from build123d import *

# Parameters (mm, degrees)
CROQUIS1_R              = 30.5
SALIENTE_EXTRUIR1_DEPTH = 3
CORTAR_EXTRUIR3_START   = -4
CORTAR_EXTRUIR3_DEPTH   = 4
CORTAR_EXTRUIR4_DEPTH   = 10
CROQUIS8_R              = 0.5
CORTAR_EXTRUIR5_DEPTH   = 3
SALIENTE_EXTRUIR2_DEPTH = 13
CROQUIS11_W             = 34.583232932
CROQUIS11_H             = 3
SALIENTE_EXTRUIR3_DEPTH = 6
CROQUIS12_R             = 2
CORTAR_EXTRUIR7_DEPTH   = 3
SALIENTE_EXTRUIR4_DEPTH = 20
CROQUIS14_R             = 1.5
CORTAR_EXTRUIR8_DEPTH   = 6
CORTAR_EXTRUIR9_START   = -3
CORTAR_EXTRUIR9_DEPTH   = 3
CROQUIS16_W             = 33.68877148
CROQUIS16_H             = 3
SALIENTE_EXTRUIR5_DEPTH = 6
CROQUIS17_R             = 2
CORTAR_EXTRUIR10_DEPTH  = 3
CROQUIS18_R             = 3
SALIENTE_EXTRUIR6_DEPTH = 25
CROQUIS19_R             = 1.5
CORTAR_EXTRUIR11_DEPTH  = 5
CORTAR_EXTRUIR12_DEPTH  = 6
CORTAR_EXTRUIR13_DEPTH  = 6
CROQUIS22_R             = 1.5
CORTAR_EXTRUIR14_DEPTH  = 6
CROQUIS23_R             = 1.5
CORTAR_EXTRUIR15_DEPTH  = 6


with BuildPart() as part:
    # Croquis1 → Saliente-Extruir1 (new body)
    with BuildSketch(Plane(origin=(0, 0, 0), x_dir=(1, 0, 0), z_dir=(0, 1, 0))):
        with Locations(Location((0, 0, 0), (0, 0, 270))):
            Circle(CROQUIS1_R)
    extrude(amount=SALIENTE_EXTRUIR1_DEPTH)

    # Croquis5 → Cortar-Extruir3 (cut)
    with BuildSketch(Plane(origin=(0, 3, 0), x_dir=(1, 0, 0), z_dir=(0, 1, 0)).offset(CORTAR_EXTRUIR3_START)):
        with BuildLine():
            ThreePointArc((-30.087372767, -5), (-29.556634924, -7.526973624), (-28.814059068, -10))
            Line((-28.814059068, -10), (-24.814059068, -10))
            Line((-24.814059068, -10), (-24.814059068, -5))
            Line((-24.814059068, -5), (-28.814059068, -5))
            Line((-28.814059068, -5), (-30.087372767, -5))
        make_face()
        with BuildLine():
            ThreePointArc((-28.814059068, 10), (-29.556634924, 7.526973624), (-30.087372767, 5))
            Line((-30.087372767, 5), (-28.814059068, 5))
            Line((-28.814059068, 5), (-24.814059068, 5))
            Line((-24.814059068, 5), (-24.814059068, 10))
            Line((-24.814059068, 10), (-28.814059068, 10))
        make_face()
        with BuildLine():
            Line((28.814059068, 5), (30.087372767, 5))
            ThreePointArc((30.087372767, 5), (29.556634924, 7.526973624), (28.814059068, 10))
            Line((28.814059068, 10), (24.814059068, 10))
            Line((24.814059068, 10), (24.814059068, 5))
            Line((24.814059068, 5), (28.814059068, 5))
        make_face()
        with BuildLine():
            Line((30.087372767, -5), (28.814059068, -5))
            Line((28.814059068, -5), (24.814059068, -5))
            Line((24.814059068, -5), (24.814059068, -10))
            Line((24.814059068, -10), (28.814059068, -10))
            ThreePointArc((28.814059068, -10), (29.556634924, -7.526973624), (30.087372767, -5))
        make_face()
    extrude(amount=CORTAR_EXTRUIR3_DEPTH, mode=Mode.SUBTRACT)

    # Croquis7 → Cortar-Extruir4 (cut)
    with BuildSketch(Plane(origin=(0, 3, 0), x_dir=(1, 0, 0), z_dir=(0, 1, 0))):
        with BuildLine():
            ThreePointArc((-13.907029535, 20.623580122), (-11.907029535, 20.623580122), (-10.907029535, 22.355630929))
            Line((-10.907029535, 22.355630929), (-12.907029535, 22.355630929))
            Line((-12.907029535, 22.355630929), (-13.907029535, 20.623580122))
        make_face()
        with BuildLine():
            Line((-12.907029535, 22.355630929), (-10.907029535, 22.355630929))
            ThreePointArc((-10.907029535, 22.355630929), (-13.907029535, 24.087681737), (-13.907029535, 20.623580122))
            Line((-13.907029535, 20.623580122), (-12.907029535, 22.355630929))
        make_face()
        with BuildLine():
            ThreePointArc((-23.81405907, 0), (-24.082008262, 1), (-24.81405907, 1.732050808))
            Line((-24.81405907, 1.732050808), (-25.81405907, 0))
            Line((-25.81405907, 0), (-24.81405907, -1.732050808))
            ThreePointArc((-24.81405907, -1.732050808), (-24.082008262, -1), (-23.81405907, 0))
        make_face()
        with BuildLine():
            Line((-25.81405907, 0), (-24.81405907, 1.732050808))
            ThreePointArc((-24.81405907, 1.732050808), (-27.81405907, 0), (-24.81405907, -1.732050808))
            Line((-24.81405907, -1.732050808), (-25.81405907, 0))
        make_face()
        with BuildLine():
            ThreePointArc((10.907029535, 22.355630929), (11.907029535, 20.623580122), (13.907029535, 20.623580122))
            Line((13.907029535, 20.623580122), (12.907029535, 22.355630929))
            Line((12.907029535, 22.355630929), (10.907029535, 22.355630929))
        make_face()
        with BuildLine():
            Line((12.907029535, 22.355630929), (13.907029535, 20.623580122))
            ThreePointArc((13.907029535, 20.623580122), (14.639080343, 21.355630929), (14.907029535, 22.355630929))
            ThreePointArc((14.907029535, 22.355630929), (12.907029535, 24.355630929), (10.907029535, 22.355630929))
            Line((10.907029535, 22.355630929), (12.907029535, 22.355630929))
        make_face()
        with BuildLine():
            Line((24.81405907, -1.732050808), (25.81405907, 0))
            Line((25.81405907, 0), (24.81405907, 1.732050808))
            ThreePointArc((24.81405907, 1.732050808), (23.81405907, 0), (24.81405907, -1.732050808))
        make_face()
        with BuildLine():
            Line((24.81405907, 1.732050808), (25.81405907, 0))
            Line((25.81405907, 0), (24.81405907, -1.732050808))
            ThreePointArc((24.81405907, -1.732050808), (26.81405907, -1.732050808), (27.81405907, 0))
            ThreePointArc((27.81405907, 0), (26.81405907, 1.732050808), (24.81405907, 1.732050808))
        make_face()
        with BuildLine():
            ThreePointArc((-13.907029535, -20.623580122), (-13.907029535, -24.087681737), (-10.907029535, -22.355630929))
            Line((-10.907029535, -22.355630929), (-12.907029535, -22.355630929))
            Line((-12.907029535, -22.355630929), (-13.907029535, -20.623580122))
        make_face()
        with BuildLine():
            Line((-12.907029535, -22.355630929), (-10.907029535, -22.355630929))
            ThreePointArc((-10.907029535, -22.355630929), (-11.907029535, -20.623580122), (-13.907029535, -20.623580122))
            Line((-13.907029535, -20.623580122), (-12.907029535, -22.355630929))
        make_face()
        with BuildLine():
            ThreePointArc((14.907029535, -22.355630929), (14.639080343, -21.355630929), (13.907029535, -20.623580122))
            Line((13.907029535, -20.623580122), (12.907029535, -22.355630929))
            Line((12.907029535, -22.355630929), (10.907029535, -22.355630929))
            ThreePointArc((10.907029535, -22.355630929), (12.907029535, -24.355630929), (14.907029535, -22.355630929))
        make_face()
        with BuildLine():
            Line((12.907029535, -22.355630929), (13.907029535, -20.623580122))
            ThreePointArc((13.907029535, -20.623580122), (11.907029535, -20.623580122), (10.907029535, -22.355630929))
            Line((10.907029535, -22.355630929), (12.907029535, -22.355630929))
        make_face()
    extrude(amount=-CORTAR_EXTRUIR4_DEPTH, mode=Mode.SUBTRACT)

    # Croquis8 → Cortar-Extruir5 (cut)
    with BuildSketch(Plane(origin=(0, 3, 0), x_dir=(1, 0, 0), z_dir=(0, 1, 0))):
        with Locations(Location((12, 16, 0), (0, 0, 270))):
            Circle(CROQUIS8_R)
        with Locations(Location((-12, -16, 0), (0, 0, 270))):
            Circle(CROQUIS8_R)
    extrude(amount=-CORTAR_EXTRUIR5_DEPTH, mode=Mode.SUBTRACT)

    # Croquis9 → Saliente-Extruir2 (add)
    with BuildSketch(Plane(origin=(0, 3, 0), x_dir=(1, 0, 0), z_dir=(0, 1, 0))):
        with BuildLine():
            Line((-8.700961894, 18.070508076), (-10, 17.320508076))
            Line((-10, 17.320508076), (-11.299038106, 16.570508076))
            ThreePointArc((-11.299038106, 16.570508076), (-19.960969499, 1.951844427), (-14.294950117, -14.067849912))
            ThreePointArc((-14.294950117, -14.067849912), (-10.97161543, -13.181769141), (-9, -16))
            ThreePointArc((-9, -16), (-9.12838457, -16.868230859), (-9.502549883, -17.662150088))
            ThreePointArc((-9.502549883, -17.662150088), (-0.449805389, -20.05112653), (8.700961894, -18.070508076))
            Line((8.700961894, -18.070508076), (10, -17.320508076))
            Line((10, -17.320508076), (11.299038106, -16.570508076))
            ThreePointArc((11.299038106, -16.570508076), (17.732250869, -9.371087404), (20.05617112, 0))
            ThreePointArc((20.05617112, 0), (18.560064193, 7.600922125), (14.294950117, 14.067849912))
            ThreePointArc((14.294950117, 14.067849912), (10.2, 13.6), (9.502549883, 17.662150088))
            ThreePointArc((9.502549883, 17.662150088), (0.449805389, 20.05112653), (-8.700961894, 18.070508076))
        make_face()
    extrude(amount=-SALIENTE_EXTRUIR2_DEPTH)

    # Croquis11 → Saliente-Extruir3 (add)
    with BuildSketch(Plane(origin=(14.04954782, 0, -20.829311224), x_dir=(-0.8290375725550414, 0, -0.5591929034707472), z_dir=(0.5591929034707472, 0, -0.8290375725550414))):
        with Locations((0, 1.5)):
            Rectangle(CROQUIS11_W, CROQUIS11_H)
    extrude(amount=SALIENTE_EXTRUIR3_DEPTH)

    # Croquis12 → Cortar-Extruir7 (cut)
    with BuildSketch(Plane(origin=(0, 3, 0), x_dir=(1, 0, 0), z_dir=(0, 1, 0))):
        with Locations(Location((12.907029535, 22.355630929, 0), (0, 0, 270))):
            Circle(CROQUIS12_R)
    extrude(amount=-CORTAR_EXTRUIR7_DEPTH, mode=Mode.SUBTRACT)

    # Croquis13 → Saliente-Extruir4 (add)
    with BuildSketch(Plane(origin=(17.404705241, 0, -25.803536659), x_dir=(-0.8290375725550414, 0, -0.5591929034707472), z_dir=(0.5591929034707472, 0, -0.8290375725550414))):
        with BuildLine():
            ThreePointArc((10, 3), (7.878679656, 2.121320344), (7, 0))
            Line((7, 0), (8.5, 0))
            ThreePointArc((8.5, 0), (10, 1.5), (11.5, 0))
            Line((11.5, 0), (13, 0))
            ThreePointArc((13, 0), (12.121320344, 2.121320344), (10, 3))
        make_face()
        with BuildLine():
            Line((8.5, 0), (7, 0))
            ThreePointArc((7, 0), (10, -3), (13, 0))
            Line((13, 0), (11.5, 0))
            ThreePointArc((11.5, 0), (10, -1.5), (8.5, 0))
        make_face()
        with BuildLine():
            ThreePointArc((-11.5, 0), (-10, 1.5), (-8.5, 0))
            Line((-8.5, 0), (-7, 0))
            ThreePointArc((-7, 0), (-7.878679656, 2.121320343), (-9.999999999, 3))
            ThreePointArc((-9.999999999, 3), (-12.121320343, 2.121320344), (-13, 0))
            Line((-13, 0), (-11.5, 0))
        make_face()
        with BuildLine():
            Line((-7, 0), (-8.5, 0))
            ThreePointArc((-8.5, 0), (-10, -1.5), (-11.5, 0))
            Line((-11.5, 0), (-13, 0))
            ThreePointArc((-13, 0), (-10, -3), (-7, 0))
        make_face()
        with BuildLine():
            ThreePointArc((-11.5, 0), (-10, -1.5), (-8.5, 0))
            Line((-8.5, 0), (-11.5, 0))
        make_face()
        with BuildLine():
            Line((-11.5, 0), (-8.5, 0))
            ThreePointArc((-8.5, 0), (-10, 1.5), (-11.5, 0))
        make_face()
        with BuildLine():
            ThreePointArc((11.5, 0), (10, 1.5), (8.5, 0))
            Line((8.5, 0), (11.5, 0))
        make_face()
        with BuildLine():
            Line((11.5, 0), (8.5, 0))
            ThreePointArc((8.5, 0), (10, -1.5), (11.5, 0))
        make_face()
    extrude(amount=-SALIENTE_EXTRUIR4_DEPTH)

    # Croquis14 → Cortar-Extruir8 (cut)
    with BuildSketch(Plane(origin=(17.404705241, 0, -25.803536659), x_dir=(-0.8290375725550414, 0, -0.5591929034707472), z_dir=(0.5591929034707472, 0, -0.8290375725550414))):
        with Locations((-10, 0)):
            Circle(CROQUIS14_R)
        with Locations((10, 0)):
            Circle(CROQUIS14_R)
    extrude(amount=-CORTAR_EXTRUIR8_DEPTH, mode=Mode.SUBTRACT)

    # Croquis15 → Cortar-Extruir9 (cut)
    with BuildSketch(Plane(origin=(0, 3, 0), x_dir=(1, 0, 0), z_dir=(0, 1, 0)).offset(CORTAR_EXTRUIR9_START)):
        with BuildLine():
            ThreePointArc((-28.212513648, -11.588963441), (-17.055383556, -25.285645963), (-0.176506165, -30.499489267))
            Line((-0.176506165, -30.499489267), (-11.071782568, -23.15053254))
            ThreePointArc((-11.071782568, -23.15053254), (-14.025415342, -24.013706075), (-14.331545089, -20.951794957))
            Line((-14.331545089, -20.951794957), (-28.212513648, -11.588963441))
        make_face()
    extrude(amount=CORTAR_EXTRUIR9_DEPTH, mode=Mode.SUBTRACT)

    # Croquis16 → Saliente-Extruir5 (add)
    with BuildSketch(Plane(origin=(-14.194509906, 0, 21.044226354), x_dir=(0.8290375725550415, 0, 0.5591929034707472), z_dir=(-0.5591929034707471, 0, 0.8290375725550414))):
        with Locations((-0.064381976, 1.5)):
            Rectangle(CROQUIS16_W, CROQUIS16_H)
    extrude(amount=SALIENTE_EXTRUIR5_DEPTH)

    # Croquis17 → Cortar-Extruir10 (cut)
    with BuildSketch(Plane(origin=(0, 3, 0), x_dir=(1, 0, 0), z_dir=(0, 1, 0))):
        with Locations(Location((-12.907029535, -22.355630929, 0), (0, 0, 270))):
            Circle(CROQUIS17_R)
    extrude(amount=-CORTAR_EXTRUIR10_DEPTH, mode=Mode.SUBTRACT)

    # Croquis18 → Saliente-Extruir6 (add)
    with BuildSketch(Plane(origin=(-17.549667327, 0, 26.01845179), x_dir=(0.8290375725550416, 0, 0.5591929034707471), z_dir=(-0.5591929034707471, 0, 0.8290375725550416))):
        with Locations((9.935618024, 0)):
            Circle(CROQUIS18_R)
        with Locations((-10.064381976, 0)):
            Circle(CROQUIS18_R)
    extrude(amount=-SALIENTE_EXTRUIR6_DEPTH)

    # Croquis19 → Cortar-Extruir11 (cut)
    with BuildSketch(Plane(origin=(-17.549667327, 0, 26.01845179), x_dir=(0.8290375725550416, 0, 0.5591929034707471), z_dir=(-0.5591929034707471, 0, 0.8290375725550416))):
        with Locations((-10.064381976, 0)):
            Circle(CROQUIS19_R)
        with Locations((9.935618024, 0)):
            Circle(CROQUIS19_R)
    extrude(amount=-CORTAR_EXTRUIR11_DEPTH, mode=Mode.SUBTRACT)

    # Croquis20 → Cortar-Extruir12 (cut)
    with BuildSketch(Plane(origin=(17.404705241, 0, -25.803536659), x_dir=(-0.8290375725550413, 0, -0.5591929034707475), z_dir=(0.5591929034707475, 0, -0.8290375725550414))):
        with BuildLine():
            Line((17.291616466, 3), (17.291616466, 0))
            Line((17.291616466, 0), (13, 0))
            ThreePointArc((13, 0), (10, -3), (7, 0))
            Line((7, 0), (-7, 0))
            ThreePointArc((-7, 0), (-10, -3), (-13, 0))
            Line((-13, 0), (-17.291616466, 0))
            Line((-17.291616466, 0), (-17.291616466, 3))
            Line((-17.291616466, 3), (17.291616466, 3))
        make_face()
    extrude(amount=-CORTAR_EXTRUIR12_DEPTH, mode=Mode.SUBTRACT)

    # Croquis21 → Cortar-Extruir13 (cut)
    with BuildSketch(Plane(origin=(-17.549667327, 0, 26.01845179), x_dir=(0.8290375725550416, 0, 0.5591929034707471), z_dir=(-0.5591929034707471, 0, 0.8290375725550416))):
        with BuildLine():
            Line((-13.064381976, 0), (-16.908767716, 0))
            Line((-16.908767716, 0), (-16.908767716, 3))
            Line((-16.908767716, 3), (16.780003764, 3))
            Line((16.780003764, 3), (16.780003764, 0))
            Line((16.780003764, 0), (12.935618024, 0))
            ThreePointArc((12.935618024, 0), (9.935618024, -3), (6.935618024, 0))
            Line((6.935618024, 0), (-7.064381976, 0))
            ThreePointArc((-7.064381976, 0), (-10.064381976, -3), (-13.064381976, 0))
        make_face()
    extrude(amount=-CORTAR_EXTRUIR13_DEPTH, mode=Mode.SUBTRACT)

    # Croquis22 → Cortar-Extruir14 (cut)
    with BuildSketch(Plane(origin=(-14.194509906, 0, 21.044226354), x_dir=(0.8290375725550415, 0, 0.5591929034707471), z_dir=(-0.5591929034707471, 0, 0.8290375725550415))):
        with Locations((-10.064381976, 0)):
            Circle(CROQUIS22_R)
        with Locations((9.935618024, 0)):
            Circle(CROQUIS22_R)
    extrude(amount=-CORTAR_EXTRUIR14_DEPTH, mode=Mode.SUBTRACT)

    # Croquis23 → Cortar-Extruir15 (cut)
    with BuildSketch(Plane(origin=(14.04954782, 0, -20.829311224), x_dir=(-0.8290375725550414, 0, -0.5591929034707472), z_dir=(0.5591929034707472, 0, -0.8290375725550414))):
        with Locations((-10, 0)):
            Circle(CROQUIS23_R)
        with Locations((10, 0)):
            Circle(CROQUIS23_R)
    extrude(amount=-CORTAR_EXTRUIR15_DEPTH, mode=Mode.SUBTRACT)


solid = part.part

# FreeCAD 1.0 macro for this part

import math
import FreeCAD as App
import Part
import Sketcher
from FreeCAD import Vector
Q = App.Units.Quantity


def add_polygon(sketch, points):
    """Adds a closed chain of lines whose ends are joined by coincident constraints."""
    first, n = sketch.GeometryCount, len(points)
    for a, b in zip(points, points[1:] + points[:1]):
        sketch.addGeometry(Part.LineSegment(App.Vector(*a, 0), App.Vector(*b, 0)), False)
    for i in range(n):
        sketch.addConstraint(Sketcher.Constraint("Coincident", first + i, 2, first + (i + 1) % n, 1))

doc = App.newDocument("Part")
body = doc.addObject("PartDesign::Body", "Body")

# Sketch on XZ plane
sketch1 = body.newObject("Sketcher::SketchObject", "Sketch")
sketch1.AttachmentSupport = (doc.getObject("XZ_Plane"), [""])
sketch1.MapMode = "FlatFace"
sketch1.addGeometry(Part.Circle(Vector(0, 0, 0), Vector(0, 0, 1), 30), False)
sketch1.addConstraint(Sketcher.Constraint("Coincident", 0, 3, -1, 1))
sketch1.addConstraint(Sketcher.Constraint("Diameter", 0, 61.0))
pad1 = body.newObject("PartDesign::Pad", "Pad")
pad1.Profile = sketch1
pad1.Length = 3
pad1.Reversed = True

# Sketch on XZ plane
sketch2 = body.newObject("Sketcher::SketchObject", "Sketch001")
sketch2.AttachmentSupport = (doc.getObject("XZ_Plane"), [""])
sketch2.MapMode = "FlatFace"
sketch2.AttachmentOffset = App.Placement(Vector(0, 0, 1), App.Rotation())
sketch2.addGeometry(Part.ArcOfCircle(Part.Circle(Vector(0, 0, 0), Vector(0, 0, 1), 30.5), math.radians(160.86), math.radians(170.56)), False)
sketch2.addGeometry(Part.LineSegment(Vector(-28.8, 10, 0), Vector(-24.8, 10, 0)), False)
sketch2.addGeometry(Part.LineSegment(Vector(-24.8, 10, 0), Vector(-24.8, 5, 0)), False)
sketch2.addGeometry(Part.LineSegment(Vector(-24.8, 5, 0), Vector(-30.1, 5, 0)), False)
sketch2.addGeometry(Part.ArcOfCircle(Part.Circle(Vector(0, 0, 0), Vector(0, 0, 1), 30.5), math.radians(-170.56), math.radians(-160.86)), False)
sketch2.addGeometry(Part.LineSegment(Vector(-30.1, -5, 0), Vector(-24.8, -5, 0)), False)
sketch2.addGeometry(Part.LineSegment(Vector(-24.8, -5, 0), Vector(-24.8, -10, 0)), False)
sketch2.addGeometry(Part.LineSegment(Vector(-24.8, -10, 0), Vector(-28.8, -10, 0)), False)
sketch2.addGeometry(Part.ArcOfCircle(Part.Circle(Vector(0, 0, 0), Vector(0, 0, 1), 30.5), math.radians(-19.14), math.radians(-9.44)), False)
sketch2.addGeometry(Part.LineSegment(Vector(28.8, -10, 0), Vector(24.8, -10, 0)), False)
sketch2.addGeometry(Part.LineSegment(Vector(24.8, -10, 0), Vector(24.8, -5, 0)), False)
sketch2.addGeometry(Part.LineSegment(Vector(24.8, -5, 0), Vector(30.1, -5, 0)), False)
sketch2.addGeometry(Part.LineSegment(Vector(30.1, 5, 0), Vector(24.8, 5, 0)), False)
sketch2.addGeometry(Part.LineSegment(Vector(24.8, 5, 0), Vector(24.8, 10, 0)), False)
sketch2.addGeometry(Part.LineSegment(Vector(24.8, 10, 0), Vector(28.8, 10, 0)), False)
sketch2.addGeometry(Part.ArcOfCircle(Part.Circle(Vector(0, 0, 0), Vector(0, 0, 1), 30.5), math.radians(9.44), math.radians(19.14)), False)
sketch2.addConstraint(Sketcher.Constraint("Coincident", 0, 1, 1, 1))
sketch2.addConstraint(Sketcher.Constraint("Coincident", 1, 2, 2, 1))
sketch2.addConstraint(Sketcher.Constraint("Coincident", 2, 2, 3, 1))
sketch2.addConstraint(Sketcher.Constraint("Coincident", 3, 2, 0, 2))
sketch2.addConstraint(Sketcher.Constraint("Coincident", 4, 1, 5, 1))
sketch2.addConstraint(Sketcher.Constraint("Coincident", 5, 2, 6, 1))
sketch2.addConstraint(Sketcher.Constraint("Coincident", 6, 2, 7, 1))
sketch2.addConstraint(Sketcher.Constraint("Coincident", 7, 2, 4, 2))
sketch2.addConstraint(Sketcher.Constraint("Coincident", 8, 1, 9, 1))
sketch2.addConstraint(Sketcher.Constraint("Coincident", 9, 2, 10, 1))
sketch2.addConstraint(Sketcher.Constraint("Coincident", 10, 2, 11, 1))
sketch2.addConstraint(Sketcher.Constraint("Coincident", 11, 2, 8, 2))
sketch2.addConstraint(Sketcher.Constraint("Coincident", 12, 2, 13, 1))
sketch2.addConstraint(Sketcher.Constraint("Coincident", 13, 2, 14, 1))
sketch2.addConstraint(Sketcher.Constraint("Coincident", 14, 2, 15, 2))
sketch2.addConstraint(Sketcher.Constraint("Coincident", 15, 1, 12, 1))
sketch2.addConstraint(Sketcher.Constraint("Horizontal", 1))
sketch2.addConstraint(Sketcher.Constraint("Vertical", 2))
sketch2.addConstraint(Sketcher.Constraint("Horizontal", 3))
sketch2.addConstraint(Sketcher.Constraint("Horizontal", 5))
sketch2.addConstraint(Sketcher.Constraint("Vertical", 6))
sketch2.addConstraint(Sketcher.Constraint("Horizontal", 7))
sketch2.addConstraint(Sketcher.Constraint("Horizontal", 9))
sketch2.addConstraint(Sketcher.Constraint("Vertical", 10))
sketch2.addConstraint(Sketcher.Constraint("Horizontal", 11))
sketch2.addConstraint(Sketcher.Constraint("Horizontal", 12))
sketch2.addConstraint(Sketcher.Constraint("Vertical", 13))
sketch2.addConstraint(Sketcher.Constraint("Horizontal", 14))
sketch2.addConstraint(Sketcher.Constraint("Coincident", 0, 3, -1, 1))
sketch2.addConstraint(Sketcher.Constraint("Coincident", 4, 3, -1, 1))
sketch2.addConstraint(Sketcher.Constraint("Coincident", 8, 3, -1, 1))
sketch2.addConstraint(Sketcher.Constraint("Coincident", 15, 3, -1, 1))
sketch2.addConstraint(Sketcher.Constraint("Equal", 0, 4))
sketch2.addConstraint(Sketcher.Constraint("Equal", 4, 8))
sketch2.addConstraint(Sketcher.Constraint("Equal", 8, 15))
sketch2.addConstraint(Sketcher.Constraint("Symmetric", 1, 2, 9, 2, -1, 1))
sketch2.addConstraint(Sketcher.Constraint("Symmetric", 5, 2, 12, 2, -1, 1))
sketch2.addConstraint(Sketcher.Constraint("Symmetric", 6, 2, 9, 2, -2))
sketch2.addConstraint(Sketcher.Constraint("Horizontal", 5, 2, 10, 2))
sketch2.addConstraint(Sketcher.Constraint("Horizontal", 3, 2, 12, 2))
sketch2.addConstraint(Sketcher.Constraint("Horizontal", 1, 2, 13, 2))
sketch2.addConstraint(Sketcher.Constraint("Radius", 0, 30.5))
sketch2.addConstraint(Sketcher.Constraint("DistanceX", 1, 1, 1, 2, 4.0))
sketch2.addConstraint(Sketcher.Constraint("DistanceY", 2, 2, 2, 1, 5.0))
sketch2.addConstraint(Sketcher.Constraint("DistanceY", -1, 1, 0, 1, 10.0))
pocket1 = body.newObject("PartDesign::Pocket", "Pocket")
pocket1.Profile = sketch2
pocket1.Length = 4

# Sketch on XZ plane
sketch3 = body.newObject("Sketcher::SketchObject", "Sketch002")
sketch3.AttachmentSupport = (doc.getObject("XZ_Plane"), [""])
sketch3.MapMode = "FlatFace"
sketch3.AttachmentOffset = App.Placement(Vector(0, 0, -3), App.Rotation())
sketch3.addGeometry(Part.ArcOfCircle(Part.Circle(Vector(-12.9, -22.4, 0), Vector(0, 0, 1), 2), math.radians(0), math.radians(120)), False)
sketch3.addGeometry(Part.ArcOfCircle(Part.Circle(Vector(-12.9, -22.4, 0), Vector(0, 0, 1), 2), math.radians(120), math.radians(360)), False)
sketch3.addGeometry(Part.ArcOfCircle(Part.Circle(Vector(-25.8, 0, 0), Vector(0, 0, 1), 2), math.radians(-60), math.radians(0)), False)
sketch3.addGeometry(Part.ArcOfCircle(Part.Circle(Vector(-25.8, 0, 0), Vector(0, 0, 1), 2), math.radians(60), math.radians(300)), False)
sketch3.addGeometry(Part.ArcOfCircle(Part.Circle(Vector(-25.8, 0, 0), Vector(0, 0, 1), 2), math.radians(0), math.radians(60)), False)
sketch3.addGeometry(Part.ArcOfCircle(Part.Circle(Vector(12.9, -22.4, 0), Vector(0, 0, 1), 2), math.radians(60), math.radians(180)), False)
sketch3.addGeometry(Part.ArcOfCircle(Part.Circle(Vector(12.9, -22.4, 0), Vector(0, 0, 1), 2), math.radians(0), math.radians(60)), False)
sketch3.addGeometry(Part.ArcOfCircle(Part.Circle(Vector(12.9, -22.4, 0), Vector(0, 0, 1), 2), math.radians(180), math.radians(360)), False)
sketch3.addGeometry(Part.ArcOfCircle(Part.Circle(Vector(25.8, 0, 0), Vector(0, 0, 1), 2), math.radians(120), math.radians(240)), False)
sketch3.addGeometry(Part.ArcOfCircle(Part.Circle(Vector(25.8, 0, 0), Vector(0, 0, 1), 2), math.radians(0), math.radians(120)), False)
sketch3.addGeometry(Part.ArcOfCircle(Part.Circle(Vector(25.8, 0, 0), Vector(0, 0, 1), 2), math.radians(-120), math.radians(0)), False)
sketch3.addGeometry(Part.ArcOfCircle(Part.Circle(Vector(-12.9, 22.4, 0), Vector(0, 0, 1), 2), math.radians(0), math.radians(240)), False)
sketch3.addGeometry(Part.ArcOfCircle(Part.Circle(Vector(-12.9, 22.4, 0), Vector(0, 0, 1), 2), math.radians(-120), math.radians(0)), False)
sketch3.addGeometry(Part.ArcOfCircle(Part.Circle(Vector(12.9, 22.4, 0), Vector(0, 0, 1), 2), math.radians(-60), math.radians(0)), False)
sketch3.addGeometry(Part.ArcOfCircle(Part.Circle(Vector(12.9, 22.4, 0), Vector(0, 0, 1), 2), math.radians(-180), math.radians(-60)), False)
sketch3.addGeometry(Part.ArcOfCircle(Part.Circle(Vector(12.9, 22.4, 0), Vector(0, 0, 1), 2), math.radians(0), math.radians(180)), False)
sketch3.addConstraint(Sketcher.Constraint("Tangent", 0, 1, 1, 2))
sketch3.addConstraint(Sketcher.Constraint("Coincident", 1, 1, 0, 2))
sketch3.addConstraint(Sketcher.Constraint("Tangent", 2, 1, 3, 2))
sketch3.addConstraint(Sketcher.Constraint("Tangent", 3, 1, 4, 2))
sketch3.addConstraint(Sketcher.Constraint("Tangent", 4, 1, 2, 2))
sketch3.addConstraint(Sketcher.Constraint("Tangent", 5, 1, 6, 2))
sketch3.addConstraint(Sketcher.Constraint("Tangent", 6, 1, 7, 2))
sketch3.addConstraint(Sketcher.Constraint("Tangent", 7, 1, 5, 2))
sketch3.addConstraint(Sketcher.Constraint("Tangent", 8, 1, 9, 2))
sketch3.addConstraint(Sketcher.Constraint("Tangent", 9, 1, 10, 2))
sketch3.addConstraint(Sketcher.Constraint("Tangent", 10, 1, 8, 2))
sketch3.addConstraint(Sketcher.Constraint("Tangent", 11, 1, 12, 2))
sketch3.addConstraint(Sketcher.Constraint("Coincident", 12, 1, 11, 2))
sketch3.addConstraint(Sketcher.Constraint("Tangent", 13, 1, 14, 2))
sketch3.addConstraint(Sketcher.Constraint("Tangent", 14, 1, 15, 2))
sketch3.addConstraint(Sketcher.Constraint("Tangent", 15, 1, 13, 2))
sketch3.addConstraint(Sketcher.Constraint("Equal", 1, 2))
sketch3.addConstraint(Sketcher.Constraint("Equal", 4, 5))
sketch3.addConstraint(Sketcher.Constraint("Equal", 7, 8))
sketch3.addConstraint(Sketcher.Constraint("Equal", 10, 11))
sketch3.addConstraint(Sketcher.Constraint("Equal", 12, 13))
sketch3.addConstraint(Sketcher.Constraint("Symmetric", 2, 3, 8, 3, -1, 1))
sketch3.addConstraint(Sketcher.Constraint("Symmetric", 5, 3, 11, 3, -1, 1))
sketch3.addConstraint(Sketcher.Constraint("Symmetric", 0, 3, 13, 3, -1, 1))
sketch3.addConstraint(Sketcher.Constraint("Symmetric", 0, 3, 5, 3, -2))
sketch3.addConstraint(Sketcher.Constraint("Symmetric", 3, 1, 8, 1, -2))
sketch3.addConstraint(Sketcher.Constraint("PointOnObject", 4, 1, -1))
sketch3.addConstraint(Sketcher.Constraint("PointOnObject", 9, 1, -1))
sketch3.addConstraint(Sketcher.Constraint("Horizontal", 7, 3, 0, 1))
sketch3.addConstraint(Sketcher.Constraint("Horizontal", 1, 1, 5, 1))
sketch3.addConstraint(Sketcher.Constraint("Horizontal", 0, 1, 6, 1))
sketch3.addConstraint(Sketcher.Constraint("Horizontal", 6, 1, 7, 1))
sketch3.addConstraint(Sketcher.Constraint("Horizontal", 2, 1, 10, 1))
sketch3.addConstraint(Sketcher.Constraint("Horizontal", 15, 3, 11, 1))
sketch3.addConstraint(Sketcher.Constraint("Horizontal", 12, 1, 13, 1))
sketch3.addConstraint(Sketcher.Constraint("Horizontal", 11, 1, 14, 1))
sketch3.addConstraint(Sketcher.Constraint("Horizontal", 14, 1, 15, 1))
sketch3.addConstraint(Sketcher.Constraint("Vertical", 2, 1, 3, 1))
sketch3.addConstraint(Sketcher.Constraint("Vertical", 1, 1, 12, 1))
sketch3.addConstraint(Sketcher.Constraint("Radius", 0, 2.0))
sketch3.addConstraint(Sketcher.Constraint("DistanceX", 1, 1, 0, 3, 1.0))
sketch3.addConstraint(Sketcher.Constraint("DistanceX", 2, 3, 2, 1, 1.0))
sketch3.addConstraint(Sketcher.Constraint("DistanceX", 0, 3, -1, 1, 12.90703))
sketch3.addConstraint(Sketcher.Constraint("DistanceY", 0, 3, -1, 1, 22.355631))
sketch3.addConstraint(Sketcher.Constraint("DistanceX", 2, 3, -1, 1, 25.814059))
pocket2 = body.newObject("PartDesign::Pocket", "Pocket001")
pocket2.Profile = sketch3
pocket2.Length = 10
pocket2.Reversed = True

# Sketch on XZ plane
sketch4 = body.newObject("Sketcher::SketchObject", "Sketch003")
sketch4.AttachmentSupport = (doc.getObject("XZ_Plane"), [""])
sketch4.MapMode = "FlatFace"
sketch4.AttachmentOffset = App.Placement(Vector(0, 0, -3), App.Rotation())
sketch4.addGeometry(Part.Circle(Vector(12, -16, 0), Vector(0, 0, 1), 0.5), False)
sketch4.addGeometry(Part.Circle(Vector(-12, 16, 0), Vector(0, 0, 1), 0.5), False)
sketch4.addConstraint(Sketcher.Constraint("Equal", 0, 1))
sketch4.addConstraint(Sketcher.Constraint("Symmetric", 0, 3, 1, 3, -1, 1))
sketch4.addConstraint(Sketcher.Constraint("Diameter", 0, 1.0))
sketch4.addConstraint(Sketcher.Constraint("DistanceX", -1, 1, 0, 3, 12.0))
sketch4.addConstraint(Sketcher.Constraint("DistanceY", 0, 3, -1, 1, 16.0))
pocket3 = body.newObject("PartDesign::Pocket", "Pocket002")
pocket3.Profile = sketch4
pocket3.Length = 3
pocket3.Reversed = True

# Sketch on XZ plane
sketch5 = body.newObject("Sketcher::SketchObject", "Sketch004")
sketch5.AttachmentSupport = (doc.getObject("XZ_Plane"), [""])
sketch5.MapMode = "FlatFace"
sketch5.AttachmentOffset = App.Placement(Vector(0, 0, -3), App.Rotation())
sketch5.addGeometry(Part.LineSegment(Vector(-8.7, -18.1, 0), Vector(-11.3, -16.6, 0)), False)
sketch5.addGeometry(Part.ArcOfCircle(Part.Circle(Vector(0, 0, 0), Vector(0, 0, 1), 20.1), math.radians(135), math.radians(236)), False)
sketch5.addGeometry(Part.ArcOfCircle(Part.Circle(Vector(-12, 16, 0), Vector(0, 0, 1), 3), math.radians(-140), math.radians(0)), False)
sketch5.addGeometry(Part.ArcOfCircle(Part.Circle(Vector(-12, 16, 0), Vector(0, 0, 1), 3), math.radians(0), math.radians(34)), False)
sketch5.addGeometry(Part.ArcOfCircle(Part.Circle(Vector(0, 0, 0), Vector(0, 0, 1), 20.1), math.radians(64), math.radians(118)), False)
sketch5.addGeometry(Part.LineSegment(Vector(8.7, 18.1, 0), Vector(11.3, 16.6, 0)), False)
sketch5.addGeometry(Part.ArcOfCircle(Part.Circle(Vector(0, 0, 0), Vector(0, 0, 1), 20.1), math.radians(0), math.radians(56)), False)
sketch5.addGeometry(Part.ArcOfCircle(Part.Circle(Vector(0, 0, 0), Vector(0, 0, 1), 20.1), math.radians(-45), math.radians(0)), False)
sketch5.addGeometry(Part.ArcOfCircle(Part.Circle(Vector(12, -16, 0), Vector(0, 0, 1), 3), math.radians(40), math.radians(214)), False)
sketch5.addGeometry(Part.ArcOfCircle(Part.Circle(Vector(0, 0, 0), Vector(0, 0, 1), 20.1), math.radians(-116), math.radians(-62)), False)
sketch5.addConstraint(Sketcher.Constraint("Coincident", 0, 2, 1, 2))
sketch5.addConstraint(Sketcher.Constraint("Coincident", 1, 1, 2, 1))
sketch5.addConstraint(Sketcher.Constraint("Tangent", 2, 2, 3, 1))
sketch5.addConstraint(Sketcher.Constraint("Coincident", 3, 2, 4, 2))
sketch5.addConstraint(Sketcher.Constraint("Coincident", 4, 1, 5, 1))
sketch5.addConstraint(Sketcher.Constraint("Coincident", 5, 2, 6, 2))
sketch5.addConstraint(Sketcher.Constraint("Tangent", 6, 1, 7, 2))
sketch5.addConstraint(Sketcher.Constraint("Coincident", 7, 1, 8, 1))
sketch5.addConstraint(Sketcher.Constraint("Coincident", 8, 2, 9, 2))
sketch5.addConstraint(Sketcher.Constraint("Coincident", 9, 1, 0, 1))
sketch5.addConstraint(Sketcher.Constraint("Coincident", 1, 3, -1, 1))
sketch5.addConstraint(Sketcher.Constraint("Coincident", 4, 3, -1, 1))
sketch5.addConstraint(Sketcher.Constraint("Coincident", 6, 3, -1, 1))
sketch5.addConstraint(Sketcher.Constraint("Coincident", 9, 3, -1, 1))
sketch5.addConstraint(Sketcher.Constraint("Equal", 2, 3))
sketch5.addConstraint(Sketcher.Constraint("Equal", 1, 4))
sketch5.addConstraint(Sketcher.Constraint("Equal", 4, 6))
sketch5.addConstraint(Sketcher.Constraint("Equal", 6, 7))
sketch5.addConstraint(Sketcher.Constraint("Equal", 3, 8))
sketch5.addConstraint(Sketcher.Constraint("Equal", 7, 9))
sketch5.addConstraint(Sketcher.Constraint("Symmetric", 2, 3, 8, 3, -1, 1))
sketch5.addConstraint(Sketcher.Constraint("PointOnObject", 6, 1, -1))
sketch5.addConstraint(Sketcher.Constraint("Parallel", 0, 5))
sketch5.addConstraint(Sketcher.Constraint("Horizontal", 3, 3, 2, 2))
sketch5.addConstraint(Sketcher.Constraint("Equal", 0, 5))
sketch5.addConstraint(Sketcher.Constraint("Radius", 2, 3.0))
sketch5.addConstraint(Sketcher.Constraint("Angle", 0, Q("150 deg")))
sketch5.addConstraint(Sketcher.Constraint("Distance", 0, 3.0))
sketch5.addConstraint(Sketcher.Constraint("DistanceX", 2, 3, -1, 1, 12.0))
sketch5.addConstraint(Sketcher.Constraint("DistanceY", -1, 1, 2, 3, 16.0))
sketch5.addConstraint(Sketcher.Constraint("Radius", 1, 20.056171))
pad2 = body.newObject("PartDesign::Pad", "Pad001")
pad2.Profile = sketch5
pad2.Length = 13

# Sketch on an angled plane
sketch6 = body.newObject("Sketcher::SketchObject", "Sketch005")
sketch6.Placement = App.Placement(Vector(14.049548, 0, -20.829311), App.Rotation(Vector(-0.829037573, 0, -0.559192903), Vector(0, 1, 0), Vector(0.559192903, 0, -0.829037573), "ZXY"))
add_polygon(sketch6, [(-17.3, 3), (-17.3, 0), (17.3, 0), (17.3, 3)])  # lines 0-3
sketch6.addConstraint(Sketcher.Constraint("Vertical", 0))
sketch6.addConstraint(Sketcher.Constraint("Horizontal", 1))
sketch6.addConstraint(Sketcher.Constraint("Vertical", 2))
sketch6.addConstraint(Sketcher.Constraint("Horizontal", 3))
sketch6.addConstraint(Sketcher.Constraint("Symmetric", 0, 2, 1, 2, -1, 1))
sketch6.addConstraint(Sketcher.Constraint("DistanceY", 0, 2, 0, 1, 3.0))
sketch6.addConstraint(Sketcher.Constraint("DistanceX", 1, 1, 1, 2, 34.583233))
pad3 = body.newObject("PartDesign::Pad", "Pad002")
pad3.Profile = sketch6
pad3.Length = 6

# Sketch on XZ plane
sketch7 = body.newObject("Sketcher::SketchObject", "Sketch006")
sketch7.AttachmentSupport = (doc.getObject("XZ_Plane"), [""])
sketch7.MapMode = "FlatFace"
sketch7.AttachmentOffset = App.Placement(Vector(0, 0, -3), App.Rotation())
sketch7.addGeometry(Part.Circle(Vector(12.9, -22.4, 0), Vector(0, 0, 1), 2), False)
sketch7.addConstraint(Sketcher.Constraint("Diameter", 0, 4.0))
sketch7.addConstraint(Sketcher.Constraint("DistanceX", -1, 1, 0, 3, 12.90703))
sketch7.addConstraint(Sketcher.Constraint("DistanceY", 0, 3, -1, 1, 22.355631))
pocket4 = body.newObject("PartDesign::Pocket", "Pocket003")
pocket4.Profile = sketch7
pocket4.Length = 3
pocket4.Reversed = True

# Sketch on an angled plane
sketch8 = body.newObject("Sketcher::SketchObject", "Sketch007")
sketch8.Placement = App.Placement(Vector(17.404705, 0, -25.803537), App.Rotation(Vector(-0.829037573, 0, -0.559192903), Vector(0, 1, 0), Vector(0.559192903, 0, -0.829037573), "ZXY"))
sketch8.addGeometry(Part.ArcOfCircle(Part.Circle(Vector(10, 0, 0), Vector(0, 0, 1), 3), math.radians(90), math.radians(180)), False)
sketch8.addGeometry(Part.ArcOfCircle(Part.Circle(Vector(10, 0, 0), Vector(0, 0, 1), 3), math.radians(180), math.radians(360)), False)
sketch8.addGeometry(Part.ArcOfCircle(Part.Circle(Vector(10, 0, 0), Vector(0, 0, 1), 3), math.radians(0), math.radians(90)), False)
sketch8.addGeometry(Part.ArcOfCircle(Part.Circle(Vector(-10, 0, 0), Vector(0, 0, 1), 3), math.radians(180), math.radians(360)), False)
sketch8.addGeometry(Part.ArcOfCircle(Part.Circle(Vector(-10, 0, 0), Vector(0, 0, 1), 3), math.radians(0), math.radians(90)), False)
sketch8.addGeometry(Part.ArcOfCircle(Part.Circle(Vector(-10, 0, 0), Vector(0, 0, 1), 3), math.radians(90), math.radians(180)), False)
sketch8.addConstraint(Sketcher.Constraint("Tangent", 0, 2, 1, 1))
sketch8.addConstraint(Sketcher.Constraint("Tangent", 1, 2, 2, 1))
sketch8.addConstraint(Sketcher.Constraint("Tangent", 2, 2, 0, 1))
sketch8.addConstraint(Sketcher.Constraint("Tangent", 3, 2, 4, 1))
sketch8.addConstraint(Sketcher.Constraint("Tangent", 4, 2, 5, 1))
sketch8.addConstraint(Sketcher.Constraint("Tangent", 5, 2, 3, 1))
sketch8.addConstraint(Sketcher.Constraint("Equal", 2, 3))
sketch8.addConstraint(Sketcher.Constraint("Symmetric", 0, 3, 3, 3, -1, 1))
sketch8.addConstraint(Sketcher.Constraint("Symmetric", 2, 2, 4, 2, -2))
sketch8.addConstraint(Sketcher.Constraint("PointOnObject", 0, 2, -1))
sketch8.addConstraint(Sketcher.Constraint("PointOnObject", 1, 2, -1))
sketch8.addConstraint(Sketcher.Constraint("PointOnObject", 3, 2, -1))
sketch8.addConstraint(Sketcher.Constraint("PointOnObject", 5, 2, -1))
sketch8.addConstraint(Sketcher.Constraint("Vertical", 1, 3, 2, 2))
sketch8.addConstraint(Sketcher.Constraint("Radius", 0, 3.0))
sketch8.addConstraint(Sketcher.Constraint("DistanceX", -1, 1, 0, 3, 10.0))
pad4 = body.newObject("PartDesign::Pad", "Pad003")
pad4.Profile = sketch8
pad4.Length = 20
pad4.Reversed = True

# Sketch on an angled plane
sketch9 = body.newObject("Sketcher::SketchObject", "Sketch008")
sketch9.Placement = App.Placement(Vector(17.404705, 0, -25.803537), App.Rotation(Vector(-0.829037573, 0, -0.559192903), Vector(0, 1, 0), Vector(0.559192903, 0, -0.829037573), "ZXY"))
sketch9.addGeometry(Part.Circle(Vector(-10, 0, 0), Vector(0, 0, 1), 1.5), False)
sketch9.addGeometry(Part.Circle(Vector(10, 0, 0), Vector(0, 0, 1), 1.5), False)
sketch9.addConstraint(Sketcher.Constraint("Equal", 0, 1))
sketch9.addConstraint(Sketcher.Constraint("Symmetric", 0, 3, 1, 3, -1, 1))
sketch9.addConstraint(Sketcher.Constraint("PointOnObject", 0, 3, -1))
sketch9.addConstraint(Sketcher.Constraint("Diameter", 0, 3.0))
sketch9.addConstraint(Sketcher.Constraint("DistanceX", 0, 3, -1, 1, 10.0))
pocket5 = body.newObject("PartDesign::Pocket", "Pocket004")
pocket5.Profile = sketch9
pocket5.Length = 6

# Sketch on XZ plane
sketch10 = body.newObject("Sketcher::SketchObject", "Sketch009")
sketch10.AttachmentSupport = (doc.getObject("XZ_Plane"), [""])
sketch10.MapMode = "FlatFace"
sketch10.addGeometry(Part.ArcOfCircle(Part.Circle(Vector(0, 0, 0), Vector(0, 0, 1), 30.5), math.radians(90), math.radians(158)), False)
sketch10.addGeometry(Part.LineSegment(Vector(-0.2, 30.5, 0), Vector(-11.1, 23.2, 0)), False)
sketch10.addGeometry(Part.ArcOfCircle(Part.Circle(Vector(-12.9, 22.4, 0), Vector(0, 0, 1), 2), math.radians(23), math.radians(225)), False)
sketch10.addGeometry(Part.LineSegment(Vector(-14.3, 21, 0), Vector(-28.2, 11.6, 0)), False)
sketch10.addConstraint(Sketcher.Constraint("Coincident", 0, 1, 1, 1))
sketch10.addConstraint(Sketcher.Constraint("Coincident", 1, 2, 2, 1))
sketch10.addConstraint(Sketcher.Constraint("Coincident", 2, 2, 3, 1))
sketch10.addConstraint(Sketcher.Constraint("Coincident", 3, 2, 0, 2))
sketch10.addConstraint(Sketcher.Constraint("Coincident", 0, 3, -1, 1))
sketch10.addConstraint(Sketcher.Constraint("Parallel", 1, 3))
sketch10.addConstraint(Sketcher.Constraint("Radius", 2, 2.0))
sketch10.addConstraint(Sketcher.Constraint("Radius", 0, 30.5))
sketch10.addConstraint(Sketcher.Constraint("Angle", 1, Q("-146 deg")))
sketch10.addConstraint(Sketcher.Constraint("DistanceY", 2, 3, 1, 2, 0.794902))
sketch10.addConstraint(Sketcher.Constraint("DistanceX", 2, 3, -1, 1, 12.90703))
sketch10.addConstraint(Sketcher.Constraint("DistanceY", -1, 1, 2, 3, 22.355631))
sketch10.addConstraint(Sketcher.Constraint("DistanceX", 2, 2, 0, 1, 14.155039))
pocket6 = body.newObject("PartDesign::Pocket", "Pocket005")
pocket6.Profile = sketch10
pocket6.Length = 3

# Sketch on an angled plane
sketch11 = body.newObject("Sketcher::SketchObject", "Sketch010")
sketch11.Placement = App.Placement(Vector(-14.19451, 0, 21.044226), App.Rotation(Vector(0.829037573, 0, 0.559192903), Vector(0, 1, 0), Vector(-0.559192903, 0, 0.829037573), "ZXY"))
add_polygon(sketch11, [(-16.9, 3), (-16.9, 0), (16.8, 0), (16.8, 3)])  # lines 0-3
sketch11.addConstraint(Sketcher.Constraint("Vertical", 0))
sketch11.addConstraint(Sketcher.Constraint("Horizontal", 1))
sketch11.addConstraint(Sketcher.Constraint("Vertical", 2))
sketch11.addConstraint(Sketcher.Constraint("Horizontal", 3))
sketch11.addConstraint(Sketcher.Constraint("PointOnObject", 0, 2, -1))
sketch11.addConstraint(Sketcher.Constraint("DistanceY", 0, 2, 0, 1, 3.0))
sketch11.addConstraint(Sketcher.Constraint("DistanceX", 1, 1, 1, 2, 33.688771))
sketch11.addConstraint(Sketcher.Constraint("DistanceX", 0, 2, -1, 1, 16.908768))
pad5 = body.newObject("PartDesign::Pad", "Pad004")
pad5.Profile = sketch11
pad5.Length = 6

# Sketch on XZ plane
sketch12 = body.newObject("Sketcher::SketchObject", "Sketch011")
sketch12.AttachmentSupport = (doc.getObject("XZ_Plane"), [""])
sketch12.MapMode = "FlatFace"
sketch12.AttachmentOffset = App.Placement(Vector(0, 0, -3), App.Rotation())
sketch12.addGeometry(Part.Circle(Vector(-12.9, 22.4, 0), Vector(0, 0, 1), 2), False)
sketch12.addConstraint(Sketcher.Constraint("Diameter", 0, 4.0))
sketch12.addConstraint(Sketcher.Constraint("DistanceX", 0, 3, -1, 1, 12.90703))
sketch12.addConstraint(Sketcher.Constraint("DistanceY", -1, 1, 0, 3, 22.355631))
pocket7 = body.newObject("PartDesign::Pocket", "Pocket006")
pocket7.Profile = sketch12
pocket7.Length = 3
pocket7.Reversed = True

# Sketch on an angled plane
sketch13 = body.newObject("Sketcher::SketchObject", "Sketch012")
sketch13.Placement = App.Placement(Vector(-17.549667, 0, 26.018452), App.Rotation(Vector(0.829037573, 0, 0.559192903), Vector(0, 1, 0), Vector(-0.559192903, 0, 0.829037573), "ZXY"))
sketch13.addGeometry(Part.Circle(Vector(9.9, 0, 0), Vector(0, 0, 1), 3), False)
sketch13.addGeometry(Part.Circle(Vector(-10.1, 0, 0), Vector(0, 0, 1), 3), False)
sketch13.addConstraint(Sketcher.Constraint("Equal", 0, 1))
sketch13.addConstraint(Sketcher.Constraint("PointOnObject", 0, 3, -1))
sketch13.addConstraint(Sketcher.Constraint("PointOnObject", 1, 3, -1))
sketch13.addConstraint(Sketcher.Constraint("Diameter", 0, 6.0))
sketch13.addConstraint(Sketcher.Constraint("DistanceX", 1, 3, 0, 3, 20.0))
sketch13.addConstraint(Sketcher.Constraint("DistanceX", -1, 1, 0, 3, 9.935618))
pad6 = body.newObject("PartDesign::Pad", "Pad005")
pad6.Profile = sketch13
pad6.Length = 25
pad6.Reversed = True

# Sketch on an angled plane
sketch14 = body.newObject("Sketcher::SketchObject", "Sketch013")
sketch14.Placement = App.Placement(Vector(-17.549667, 0, 26.018452), App.Rotation(Vector(0.829037573, 0, 0.559192903), Vector(0, 1, 0), Vector(-0.559192903, 0, 0.829037573), "ZXY"))
sketch14.addGeometry(Part.Circle(Vector(-10.1, 0, 0), Vector(0, 0, 1), 1.5), False)
sketch14.addGeometry(Part.Circle(Vector(9.9, 0, 0), Vector(0, 0, 1), 1.5), False)
sketch14.addConstraint(Sketcher.Constraint("Equal", 0, 1))
sketch14.addConstraint(Sketcher.Constraint("PointOnObject", 0, 3, -1))
sketch14.addConstraint(Sketcher.Constraint("PointOnObject", 1, 3, -1))
sketch14.addConstraint(Sketcher.Constraint("Diameter", 0, 3.0))
sketch14.addConstraint(Sketcher.Constraint("DistanceX", 0, 3, 1, 3, 20.0))
sketch14.addConstraint(Sketcher.Constraint("DistanceX", 0, 3, -1, 1, 10.064382))
pocket8 = body.newObject("PartDesign::Pocket", "Pocket007")
pocket8.Profile = sketch14
pocket8.Length = 5

# Sketch on an angled plane
sketch15 = body.newObject("Sketcher::SketchObject", "Sketch014")
sketch15.Placement = App.Placement(Vector(17.404705, 0, -25.803537), App.Rotation(Vector(-0.829037573, 0, -0.559192903), Vector(0, 1, 0), Vector(0.559192903, 0, -0.829037573), "ZXY"))
sketch15.addGeometry(Part.LineSegment(Vector(17.3, 0, 0), Vector(17.3, 3, 0)), False)
sketch15.addGeometry(Part.LineSegment(Vector(17.3, 3, 0), Vector(-17.3, 3, 0)), False)
sketch15.addGeometry(Part.LineSegment(Vector(-17.3, 3, 0), Vector(-17.3, 0, 0)), False)
sketch15.addGeometry(Part.LineSegment(Vector(-17.3, 0, 0), Vector(-13, 0, 0)), False)
sketch15.addGeometry(Part.ArcOfCircle(Part.Circle(Vector(-10, 0, 0), Vector(0, 0, 1), 3), math.radians(180), math.radians(360)), False)
sketch15.addGeometry(Part.LineSegment(Vector(-7, 0, 0), Vector(7, 0, 0)), False)
sketch15.addGeometry(Part.ArcOfCircle(Part.Circle(Vector(10, 0, 0), Vector(0, 0, 1), 3), math.radians(180), math.radians(360)), False)
sketch15.addGeometry(Part.LineSegment(Vector(13, 0, 0), Vector(17.3, 0, 0)), False)
sketch15.addConstraint(Sketcher.Constraint("Coincident", 0, 2, 1, 1))
sketch15.addConstraint(Sketcher.Constraint("Coincident", 1, 2, 2, 1))
sketch15.addConstraint(Sketcher.Constraint("Coincident", 2, 2, 3, 1))
sketch15.addConstraint(Sketcher.Constraint("Coincident", 3, 2, 4, 1))
sketch15.addConstraint(Sketcher.Constraint("Coincident", 4, 2, 5, 1))
sketch15.addConstraint(Sketcher.Constraint("Coincident", 5, 2, 6, 1))
sketch15.addConstraint(Sketcher.Constraint("Coincident", 6, 2, 7, 1))
sketch15.addConstraint(Sketcher.Constraint("Coincident", 7, 2, 0, 1))
sketch15.addConstraint(Sketcher.Constraint("Vertical", 0))
sketch15.addConstraint(Sketcher.Constraint("Horizontal", 1))
sketch15.addConstraint(Sketcher.Constraint("Vertical", 2))
sketch15.addConstraint(Sketcher.Constraint("Horizontal", 3))
sketch15.addConstraint(Sketcher.Constraint("Horizontal", 5))
sketch15.addConstraint(Sketcher.Constraint("Horizontal", 7))
sketch15.addConstraint(Sketcher.Constraint("Equal", 4, 6))
sketch15.addConstraint(Sketcher.Constraint("Symmetric", 4, 3, 6, 3, -1, 1))
sketch15.addConstraint(Sketcher.Constraint("Symmetric", 2, 2, 7, 2, -1, 1))
sketch15.addConstraint(Sketcher.Constraint("PointOnObject", 4, 3, -1))
sketch15.addConstraint(Sketcher.Constraint("PointOnObject", 2, 2, -1))
sketch15.addConstraint(Sketcher.Constraint("PointOnObject", 4, 2, -1))
sketch15.addConstraint(Sketcher.Constraint("Radius", 4, 3.0))
sketch15.addConstraint(Sketcher.Constraint("DistanceX", 5, 1, 5, 2, 14.0))
sketch15.addConstraint(Sketcher.Constraint("DistanceY", 0, 1, 0, 2, 3.0))
sketch15.addConstraint(Sketcher.Constraint("DistanceX", 1, 2, 1, 1, 34.583233))
pocket9 = body.newObject("PartDesign::Pocket", "Pocket008")
pocket9.Profile = sketch15
pocket9.Length = 6

# Sketch on an angled plane
sketch16 = body.newObject("Sketcher::SketchObject", "Sketch015")
sketch16.Placement = App.Placement(Vector(-17.549667, 0, 26.018452), App.Rotation(Vector(0.829037573, 0, 0.559192903), Vector(0, 1, 0), Vector(-0.559192903, 0, 0.829037573), "ZXY"))
sketch16.addGeometry(Part.LineSegment(Vector(-16.9, 0, 0), Vector(-13.1, 0, 0)), False)
sketch16.addGeometry(Part.ArcOfCircle(Part.Circle(Vector(-10.1, 0, 0), Vector(0, 0, 1), 3), math.radians(180), math.radians(360)), False)
sketch16.addGeometry(Part.LineSegment(Vector(-7.1, 0, 0), Vector(6.9, 0, 0)), False)
sketch16.addGeometry(Part.ArcOfCircle(Part.Circle(Vector(9.9, 0, 0), Vector(0, 0, 1), 3), math.radians(180), math.radians(360)), False)
sketch16.addGeometry(Part.LineSegment(Vector(12.9, 0, 0), Vector(16.8, 0, 0)), False)
sketch16.addGeometry(Part.LineSegment(Vector(16.8, 0, 0), Vector(16.8, 3, 0)), False)
sketch16.addGeometry(Part.LineSegment(Vector(16.8, 3, 0), Vector(-16.9, 3, 0)), False)
sketch16.addGeometry(Part.LineSegment(Vector(-16.9, 3, 0), Vector(-16.9, 0, 0)), False)
sketch16.addConstraint(Sketcher.Constraint("Coincident", 0, 2, 1, 1))
sketch16.addConstraint(Sketcher.Constraint("Coincident", 1, 2, 2, 1))
sketch16.addConstraint(Sketcher.Constraint("Coincident", 2, 2, 3, 1))
sketch16.addConstraint(Sketcher.Constraint("Coincident", 3, 2, 4, 1))
sketch16.addConstraint(Sketcher.Constraint("Coincident", 4, 2, 5, 1))
sketch16.addConstraint(Sketcher.Constraint("Coincident", 5, 2, 6, 1))
sketch16.addConstraint(Sketcher.Constraint("Coincident", 6, 2, 7, 1))
sketch16.addConstraint(Sketcher.Constraint("Coincident", 7, 2, 0, 1))
sketch16.addConstraint(Sketcher.Constraint("Horizontal", 0))
sketch16.addConstraint(Sketcher.Constraint("Horizontal", 2))
sketch16.addConstraint(Sketcher.Constraint("Horizontal", 4))
sketch16.addConstraint(Sketcher.Constraint("Vertical", 5))
sketch16.addConstraint(Sketcher.Constraint("Horizontal", 6))
sketch16.addConstraint(Sketcher.Constraint("Vertical", 7))
sketch16.addConstraint(Sketcher.Constraint("Equal", 1, 3))
sketch16.addConstraint(Sketcher.Constraint("PointOnObject", 1, 3, -1))
sketch16.addConstraint(Sketcher.Constraint("PointOnObject", 3, 3, -1))
sketch16.addConstraint(Sketcher.Constraint("PointOnObject", 0, 2, -1))
sketch16.addConstraint(Sketcher.Constraint("PointOnObject", 1, 2, -1))
sketch16.addConstraint(Sketcher.Constraint("PointOnObject", 3, 2, -1))
sketch16.addConstraint(Sketcher.Constraint("Equal", 0, 4))
sketch16.addConstraint(Sketcher.Constraint("Radius", 1, 3.0))
sketch16.addConstraint(Sketcher.Constraint("DistanceX", 2, 1, 2, 2, 14.0))
sketch16.addConstraint(Sketcher.Constraint("DistanceY", 5, 1, 5, 2, 3.0))
sketch16.addConstraint(Sketcher.Constraint("DistanceX", 6, 2, 6, 1, 33.688771))
sketch16.addConstraint(Sketcher.Constraint("DistanceX", 1, 3, -1, 1, 10.064382))
pocket10 = body.newObject("PartDesign::Pocket", "Pocket009")
pocket10.Profile = sketch16
pocket10.Length = 6

# Sketch on an angled plane
sketch17 = body.newObject("Sketcher::SketchObject", "Sketch016")
sketch17.Placement = App.Placement(Vector(-14.19451, 0, 21.044226), App.Rotation(Vector(0.829037573, 0, 0.559192903), Vector(0, 1, 0), Vector(-0.559192903, 0, 0.829037573), "ZXY"))
sketch17.addGeometry(Part.Circle(Vector(-10.1, 0, 0), Vector(0, 0, 1), 1.5), False)
sketch17.addGeometry(Part.Circle(Vector(9.9, 0, 0), Vector(0, 0, 1), 1.5), False)
sketch17.addConstraint(Sketcher.Constraint("Equal", 0, 1))
sketch17.addConstraint(Sketcher.Constraint("PointOnObject", 0, 3, -1))
sketch17.addConstraint(Sketcher.Constraint("PointOnObject", 1, 3, -1))
sketch17.addConstraint(Sketcher.Constraint("Diameter", 0, 3.0))
sketch17.addConstraint(Sketcher.Constraint("DistanceX", 0, 3, 1, 3, 20.0))
sketch17.addConstraint(Sketcher.Constraint("DistanceX", 0, 3, -1, 1, 10.064382))
pocket11 = body.newObject("PartDesign::Pocket", "Pocket010")
pocket11.Profile = sketch17
pocket11.Length = 6

# Sketch on an angled plane
sketch18 = body.newObject("Sketcher::SketchObject", "Sketch017")
sketch18.Placement = App.Placement(Vector(14.049548, 0, -20.829311), App.Rotation(Vector(-0.829037573, 0, -0.559192903), Vector(0, 1, 0), Vector(0.559192903, 0, -0.829037573), "ZXY"))
sketch18.addGeometry(Part.Circle(Vector(-10, 0, 0), Vector(0, 0, 1), 1.5), False)
sketch18.addGeometry(Part.Circle(Vector(10, 0, 0), Vector(0, 0, 1), 1.5), False)
sketch18.addConstraint(Sketcher.Constraint("Equal", 0, 1))
sketch18.addConstraint(Sketcher.Constraint("Symmetric", 0, 3, 1, 3, -1, 1))
sketch18.addConstraint(Sketcher.Constraint("PointOnObject", 0, 3, -1))
sketch18.addConstraint(Sketcher.Constraint("Diameter", 0, 3.0))
sketch18.addConstraint(Sketcher.Constraint("DistanceX", 0, 3, -1, 1, 10.0))
pocket12 = body.newObject("PartDesign::Pocket", "Pocket011")
pocket12.Profile = sketch18
pocket12.Length = 6

doc.recompute()
